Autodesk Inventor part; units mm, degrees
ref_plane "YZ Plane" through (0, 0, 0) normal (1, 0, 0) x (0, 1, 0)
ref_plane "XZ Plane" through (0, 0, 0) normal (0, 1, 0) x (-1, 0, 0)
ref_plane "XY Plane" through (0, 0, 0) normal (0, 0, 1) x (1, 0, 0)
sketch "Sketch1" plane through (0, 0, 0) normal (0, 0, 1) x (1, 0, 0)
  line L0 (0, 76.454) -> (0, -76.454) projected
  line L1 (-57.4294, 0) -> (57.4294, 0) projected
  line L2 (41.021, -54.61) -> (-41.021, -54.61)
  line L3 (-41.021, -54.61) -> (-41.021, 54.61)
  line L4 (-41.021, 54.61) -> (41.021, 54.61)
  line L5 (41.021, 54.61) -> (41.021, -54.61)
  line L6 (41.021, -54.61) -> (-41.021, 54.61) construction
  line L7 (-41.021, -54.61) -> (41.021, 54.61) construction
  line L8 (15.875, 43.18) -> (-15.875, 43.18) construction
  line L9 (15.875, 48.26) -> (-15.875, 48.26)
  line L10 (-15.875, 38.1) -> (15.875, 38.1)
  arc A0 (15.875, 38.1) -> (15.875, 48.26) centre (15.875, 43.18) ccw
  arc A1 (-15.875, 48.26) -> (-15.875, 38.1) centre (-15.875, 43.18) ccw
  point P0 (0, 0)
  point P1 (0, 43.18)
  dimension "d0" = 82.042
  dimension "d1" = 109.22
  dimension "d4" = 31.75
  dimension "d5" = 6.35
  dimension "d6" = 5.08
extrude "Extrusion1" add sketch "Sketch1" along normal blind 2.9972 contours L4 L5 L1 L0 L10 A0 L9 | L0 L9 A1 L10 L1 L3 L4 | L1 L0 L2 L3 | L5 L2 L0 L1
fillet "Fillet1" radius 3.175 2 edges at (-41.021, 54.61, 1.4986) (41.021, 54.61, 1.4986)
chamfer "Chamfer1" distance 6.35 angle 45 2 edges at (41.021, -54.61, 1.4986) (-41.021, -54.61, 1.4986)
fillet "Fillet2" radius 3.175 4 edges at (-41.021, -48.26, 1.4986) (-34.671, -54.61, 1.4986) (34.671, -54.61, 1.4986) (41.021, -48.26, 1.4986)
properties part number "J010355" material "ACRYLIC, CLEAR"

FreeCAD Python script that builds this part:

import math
import FreeCAD as App
import Part
import Sketcher

V = App.Vector
Q = App.Units.Quantity


def edges_at(feature, points):
    """Names of the edges that pass closest to the given points."""
    edges = feature.Shape.Edges
    near = lambda p: min(range(len(edges)), key=lambda i: edges[i].distToShape(Part.Vertex(*p))[0])
    return sorted({f"Edge{near(p) + 1}" for p in points})


def add_polygon(sketch, points):
    """Adds a closed chain of lines whose ends are joined by coincident constraints."""
    first, n = sketch.GeometryCount, len(points)
    for a, b in zip(points, points[1:] + points[:1]):
        sketch.addGeometry(Part.LineSegment(App.Vector(*a, 0), App.Vector(*b, 0)), False)
    for i in range(n):
        sketch.addConstraint(Sketcher.Constraint("Coincident", first + i, 2, first + (i + 1) % n, 1))

doc = App.newDocument("Part")
body = doc.addObject("PartDesign::Body", "Body")

# Sketch on XY plane
sketch1 = body.newObject("Sketcher::SketchObject", "Sketch")
sketch1.AttachmentSupport = (doc.getObject("XY_Plane"), [""])
sketch1.MapMode = "FlatFace"
add_polygon(sketch1, [(41.021, 54.61), (-41.021, 54.61), (-41.021, -54.61), (41.021, -54.61)])  # lines 0-3
sketch1.addGeometry(Part.LineSegment(V(15.875, 38.1, 0), V(-15.875, 38.1, 0)), False)  # 4
sketch1.addGeometry(Part.ArcOfCircle(Part.Circle(V(-15.875, 43.18, 0), V(0, 0, 1), 5.08), math.radians(90), math.radians(270)), False)  # 5
sketch1.addGeometry(Part.LineSegment(V(-15.875, 48.26, 0), V(15.875, 48.26, 0)), False)  # 6
sketch1.addGeometry(Part.ArcOfCircle(Part.Circle(V(15.875, 43.18, 0), V(0, 0, 1), 5.08), math.radians(-90), math.radians(90)), False)  # 7
sketch1.addConstraint([
    Sketcher.Constraint("Tangent", 4, 2, 5, 2),
    Sketcher.Constraint("Tangent", 5, 1, 6, 1),
    Sketcher.Constraint("Tangent", 6, 2, 7, 2),
    Sketcher.Constraint("Tangent", 7, 1, 4, 1),
    Sketcher.Constraint("Horizontal", 0),
    Sketcher.Constraint("Vertical", 1),
    Sketcher.Constraint("Horizontal", 2),
    Sketcher.Constraint("Vertical", 3),
    Sketcher.Constraint("Horizontal", 4),
    Sketcher.Constraint("Horizontal", 6),
    Sketcher.Constraint("Symmetric", 0, 2, 2, 2, -1, 1),
    Sketcher.Constraint("Radius", 5, Q("0.2 in")),
    Sketcher.Constraint("DistanceY", 1, 2, 1, 1, Q("4.3 in")),
    Sketcher.Constraint("DistanceX", 0, 2, 0, 1, Q("3.23 in")),
    Sketcher.Constraint("DistanceX", 4, 2, 4, 1, Q("1.25 in")),
    Sketcher.Constraint("DistanceY", 5, 1, 0, 2, Q("0.25 in")),
    Sketcher.Constraint("DistanceX", 0, 2, 5, 3, Q("0.99 in")),
])
pad1 = body.newObject("PartDesign::Pad", "Pad")
pad1.Profile = sketch1
pad1.Length = Q("0.118 in")
doc.recompute()

fillet = body.newObject("PartDesign::Fillet", "Fillet")
fillet.Base = (pad1, edges_at(pad1, [(-41.021, 54.61, 1.499), (41.021, 54.61, 1.499)]))
fillet.Radius = Q("0.125 in")
doc.recompute()

chamfer = body.newObject("PartDesign::Chamfer", "Chamfer")
chamfer.Base = (fillet, edges_at(fillet, [(41.021, -54.61, 1.499), (-41.021, -54.61, 1.499)]))
chamfer.Size = Q("0.25 in")
doc.recompute()

fillet2 = body.newObject("PartDesign::Fillet", "Fillet001")
fillet2.Base = (chamfer, edges_at(chamfer, [
    (-41.021, -48.26, 1.499),
    (-34.671, -54.61, 1.499),
    (34.671, -54.61, 1.499),
    (41.021, -48.26, 1.499),
]))
fillet2.Radius = Q("0.125 in")

doc.recompute()
